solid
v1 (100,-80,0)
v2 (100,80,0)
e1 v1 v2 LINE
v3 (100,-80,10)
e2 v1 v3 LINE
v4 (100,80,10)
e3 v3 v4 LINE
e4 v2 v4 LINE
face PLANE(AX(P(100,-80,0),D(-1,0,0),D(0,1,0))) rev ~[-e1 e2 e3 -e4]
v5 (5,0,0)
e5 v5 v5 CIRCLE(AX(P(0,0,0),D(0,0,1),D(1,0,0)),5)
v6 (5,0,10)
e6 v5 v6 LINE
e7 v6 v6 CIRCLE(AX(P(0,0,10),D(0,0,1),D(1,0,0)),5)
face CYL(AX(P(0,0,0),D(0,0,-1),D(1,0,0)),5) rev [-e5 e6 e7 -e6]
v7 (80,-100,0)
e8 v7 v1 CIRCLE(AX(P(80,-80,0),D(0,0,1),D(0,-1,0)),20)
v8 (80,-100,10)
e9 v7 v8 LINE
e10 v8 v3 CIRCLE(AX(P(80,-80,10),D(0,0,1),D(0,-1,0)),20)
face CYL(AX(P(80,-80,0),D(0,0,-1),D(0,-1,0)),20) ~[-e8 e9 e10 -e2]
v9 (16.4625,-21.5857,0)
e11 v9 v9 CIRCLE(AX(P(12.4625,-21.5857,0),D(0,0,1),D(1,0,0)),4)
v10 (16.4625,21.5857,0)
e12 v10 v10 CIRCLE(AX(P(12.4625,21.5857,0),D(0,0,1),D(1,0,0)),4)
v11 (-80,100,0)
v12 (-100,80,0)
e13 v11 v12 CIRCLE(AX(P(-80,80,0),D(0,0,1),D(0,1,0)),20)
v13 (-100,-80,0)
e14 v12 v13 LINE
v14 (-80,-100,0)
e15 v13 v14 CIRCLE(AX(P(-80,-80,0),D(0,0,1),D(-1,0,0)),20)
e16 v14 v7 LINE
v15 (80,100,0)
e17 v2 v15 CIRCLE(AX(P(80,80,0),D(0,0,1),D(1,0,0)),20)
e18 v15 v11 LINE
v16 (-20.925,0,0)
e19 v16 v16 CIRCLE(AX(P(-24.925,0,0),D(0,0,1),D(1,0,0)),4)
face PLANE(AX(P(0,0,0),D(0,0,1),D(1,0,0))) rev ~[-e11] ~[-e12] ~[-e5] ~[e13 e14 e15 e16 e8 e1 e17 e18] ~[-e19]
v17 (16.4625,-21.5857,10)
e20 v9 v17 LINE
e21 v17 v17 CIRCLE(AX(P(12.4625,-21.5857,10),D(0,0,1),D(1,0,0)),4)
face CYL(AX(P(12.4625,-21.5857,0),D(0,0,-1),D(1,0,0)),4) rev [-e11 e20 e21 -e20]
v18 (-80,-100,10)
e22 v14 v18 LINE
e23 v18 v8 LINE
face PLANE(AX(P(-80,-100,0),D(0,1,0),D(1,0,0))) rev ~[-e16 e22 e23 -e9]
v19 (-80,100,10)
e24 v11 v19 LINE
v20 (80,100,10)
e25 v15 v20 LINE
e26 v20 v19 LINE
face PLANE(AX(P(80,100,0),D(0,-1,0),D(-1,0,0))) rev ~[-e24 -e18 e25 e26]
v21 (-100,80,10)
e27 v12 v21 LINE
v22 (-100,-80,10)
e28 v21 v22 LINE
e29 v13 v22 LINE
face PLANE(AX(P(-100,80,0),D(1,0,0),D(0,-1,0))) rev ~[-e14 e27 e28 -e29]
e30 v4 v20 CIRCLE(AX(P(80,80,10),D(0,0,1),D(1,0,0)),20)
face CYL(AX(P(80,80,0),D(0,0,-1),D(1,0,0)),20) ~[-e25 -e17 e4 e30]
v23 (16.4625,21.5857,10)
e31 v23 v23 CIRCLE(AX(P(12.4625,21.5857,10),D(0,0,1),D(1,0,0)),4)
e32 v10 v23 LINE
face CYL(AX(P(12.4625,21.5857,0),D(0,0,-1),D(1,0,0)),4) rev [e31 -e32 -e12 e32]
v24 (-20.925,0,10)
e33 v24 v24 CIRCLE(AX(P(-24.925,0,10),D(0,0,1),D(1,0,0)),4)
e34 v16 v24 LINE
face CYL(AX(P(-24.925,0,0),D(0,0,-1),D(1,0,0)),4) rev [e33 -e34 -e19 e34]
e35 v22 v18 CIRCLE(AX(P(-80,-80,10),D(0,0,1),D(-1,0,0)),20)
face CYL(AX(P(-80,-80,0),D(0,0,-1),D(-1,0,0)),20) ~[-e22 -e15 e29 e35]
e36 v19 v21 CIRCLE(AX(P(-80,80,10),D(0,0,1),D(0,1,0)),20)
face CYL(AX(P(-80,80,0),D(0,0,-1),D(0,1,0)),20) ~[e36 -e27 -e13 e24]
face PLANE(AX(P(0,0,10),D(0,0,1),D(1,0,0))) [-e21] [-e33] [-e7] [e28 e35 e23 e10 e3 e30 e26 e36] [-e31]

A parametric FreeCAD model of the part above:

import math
import FreeCAD as App
import Part
import Sketcher
Q = App.Units.Quantity

doc = App.newDocument("Part")
params = doc.addObject("Spreadsheet::Sheet", "Params")
for row, (alias, value) in enumerate([
    ("sketch1_diameter", "8 mm"),
    ("sketch1_diameter2", "10 mm"),
    ("sketch1_radius", "20 mm"),
    ("pad1_length", "10 mm"),
], start=1):
    params.set(f"A{row}", alias)
    params.set(f"B{row}", "=" + value)
    params.setAlias(f"B{row}", alias)

body = doc.addObject("PartDesign::Body", "Body")

# Sketch on XY plane
sketch1 = body.newObject("Sketcher::SketchObject", "Sketch")
sketch1.AttachmentSupport = (doc.getObject("XY_Plane"), [""])
sketch1.MapMode = "FlatFace"
sketch1.addGeometry(Part.ArcOfCircle(Part.Circle(App.Vector(80, 80, 0), App.Vector(0, 0, 1), 20), math.radians(0), math.radians(90)), False)
sketch1.addGeometry(Part.LineSegment(App.Vector(80, 100, 0), App.Vector(-80, 100, 0)), False)
sketch1.addGeometry(Part.ArcOfCircle(Part.Circle(App.Vector(-80, 80, 0), App.Vector(0, 0, 1), 20), math.radians(90), math.radians(180)), False)
sketch1.addGeometry(Part.LineSegment(App.Vector(-100, 80, 0), App.Vector(-100, -80, 0)), False)
sketch1.addGeometry(Part.ArcOfCircle(Part.Circle(App.Vector(-80, -80, 0), App.Vector(0, 0, 1), 20), math.radians(180), math.radians(270)), False)
sketch1.addGeometry(Part.LineSegment(App.Vector(-80, -100, 0), App.Vector(80, -100, 0)), False)
sketch1.addGeometry(Part.ArcOfCircle(Part.Circle(App.Vector(80, -80, 0), App.Vector(0, 0, 1), 20), math.radians(-90), math.radians(0)), False)
sketch1.addGeometry(Part.LineSegment(App.Vector(100, -80, 0), App.Vector(100, 80, 0)), False)
sketch1.addGeometry(Part.Circle(App.Vector(12.5, -21.6, 0), App.Vector(0, 0, 1), 4), False)
sketch1.addGeometry(Part.Circle(App.Vector(-24.9, 0, 0), App.Vector(0, 0, 1), 4), False)
sketch1.addGeometry(Part.Circle(App.Vector(0, 0, 0), App.Vector(0, 0, 1), 5), False)
sketch1.addGeometry(Part.Circle(App.Vector(12.5, 21.6, 0), App.Vector(0, 0, 1), 4), False)
sketch1.addConstraint(Sketcher.Constraint("Tangent", 0, 2, 1, 1))
sketch1.addConstraint(Sketcher.Constraint("Tangent", 1, 2, 2, 1))
sketch1.addConstraint(Sketcher.Constraint("Tangent", 2, 2, 3, 1))
sketch1.addConstraint(Sketcher.Constraint("Tangent", 3, 2, 4, 1))
sketch1.addConstraint(Sketcher.Constraint("Tangent", 4, 2, 5, 1))
sketch1.addConstraint(Sketcher.Constraint("Tangent", 5, 2, 6, 1))
sketch1.addConstraint(Sketcher.Constraint("Tangent", 6, 2, 7, 1))
sketch1.addConstraint(Sketcher.Constraint("Tangent", 7, 2, 0, 1))
sketch1.addConstraint(Sketcher.Constraint("Horizontal", 1))
sketch1.addConstraint(Sketcher.Constraint("Vertical", 3))
sketch1.addConstraint(Sketcher.Constraint("Horizontal", 5))
sketch1.addConstraint(Sketcher.Constraint("Vertical", 7))
sketch1.addConstraint(Sketcher.Constraint("Coincident", 10, 3, -1, 1))
sketch1.addConstraint(Sketcher.Constraint("Equal", 0, 2))
sketch1.addConstraint(Sketcher.Constraint("Equal", 2, 4))
sketch1.addConstraint(Sketcher.Constraint("Equal", 4, 6))
sketch1.addConstraint(Sketcher.Constraint("Equal", 8, 9))
sketch1.addConstraint(Sketcher.Constraint("Equal", 9, 11))
sketch1.addConstraint(Sketcher.Constraint("Symmetric", 0, 3, 4, 3, -1, 1))
sketch1.addConstraint(Sketcher.Constraint("Symmetric", 8, 3, 11, 3, -1))
sketch1.addConstraint(Sketcher.Constraint("PointOnObject", 9, 3, -1))
sketch1.addConstraint(Sketcher.Constraint("Equal", 5, 3))
sketch1.addConstraint(Sketcher.Constraint("Diameter", 8, Q("8 mm")))
sketch1.addConstraint(Sketcher.Constraint("Diameter", 10, Q("10 mm")))
sketch1.addConstraint(Sketcher.Constraint("Radius", 0, Q("20 mm")))
sketch1.addConstraint(Sketcher.Constraint("DistanceY", -1, 1, 0, 2, Q("100 mm")))
sketch1.addConstraint(Sketcher.Constraint("DistanceX", 9, 3, -1, 1, Q("24.925 mm")))
sketch1.addConstraint(Sketcher.Constraint("DistanceX", -1, 1, 8, 3, Q("12.4625 mm")))
sketch1.addConstraint(Sketcher.Constraint("DistanceY", 8, 3, -1, 1, Q("21.5857 mm")))
sketch1.setExpression("Constraints[22]", "Params.sketch1_diameter")
sketch1.setExpression("Constraints[23]", "Params.sketch1_diameter2")
sketch1.setExpression("Constraints[24]", "Params.sketch1_radius")
pad1 = body.newObject("PartDesign::Pad", "Pad")
pad1.Profile = sketch1
pad1.setExpression("Length", "Params.pad1_length")

doc.recompute()
